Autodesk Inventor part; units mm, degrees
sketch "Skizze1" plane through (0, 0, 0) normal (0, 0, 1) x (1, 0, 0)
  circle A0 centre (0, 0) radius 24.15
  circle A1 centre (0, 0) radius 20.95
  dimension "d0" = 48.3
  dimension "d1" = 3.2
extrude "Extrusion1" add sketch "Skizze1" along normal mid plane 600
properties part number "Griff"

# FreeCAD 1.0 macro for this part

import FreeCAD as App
import Part
import Sketcher
Q = App.Units.Quantity

doc = App.newDocument("Part")
body = doc.addObject("PartDesign::Body", "Body")

# Sketch on XY plane
sketch1 = doc.addObject("Sketcher::SketchObject", "Sketch")
body.addObject(sketch1)
sketch1.AttachmentSupport = (doc.XY_Plane, [""])
sketch1.MapMode = "FlatFace"
sketch1.addGeometry([
    Part.Circle(App.Vector(0, 0, 0), App.Vector(0, 0, 1), 24.15),
    Part.Circle(App.Vector(0, 0, 0), App.Vector(0, 0, 1), 20.95),
], False)
sketch1.addConstraint([
    Sketcher.Constraint("Coincident", 0, 3, -1, 1),
    Sketcher.Constraint("Coincident", 1, 3, -1, 1),
    Sketcher.Constraint("Diameter", 0, Q("48.3 mm")),
    Sketcher.Constraint("Diameter", 1, Q("41.9 mm")),
])
pad1 = doc.addObject("PartDesign::Pad", "Pad")
body.addObject(pad1)
pad1.Profile = sketch1
pad1.Length = 600
pad1.Midplane = True

doc.recompute()
